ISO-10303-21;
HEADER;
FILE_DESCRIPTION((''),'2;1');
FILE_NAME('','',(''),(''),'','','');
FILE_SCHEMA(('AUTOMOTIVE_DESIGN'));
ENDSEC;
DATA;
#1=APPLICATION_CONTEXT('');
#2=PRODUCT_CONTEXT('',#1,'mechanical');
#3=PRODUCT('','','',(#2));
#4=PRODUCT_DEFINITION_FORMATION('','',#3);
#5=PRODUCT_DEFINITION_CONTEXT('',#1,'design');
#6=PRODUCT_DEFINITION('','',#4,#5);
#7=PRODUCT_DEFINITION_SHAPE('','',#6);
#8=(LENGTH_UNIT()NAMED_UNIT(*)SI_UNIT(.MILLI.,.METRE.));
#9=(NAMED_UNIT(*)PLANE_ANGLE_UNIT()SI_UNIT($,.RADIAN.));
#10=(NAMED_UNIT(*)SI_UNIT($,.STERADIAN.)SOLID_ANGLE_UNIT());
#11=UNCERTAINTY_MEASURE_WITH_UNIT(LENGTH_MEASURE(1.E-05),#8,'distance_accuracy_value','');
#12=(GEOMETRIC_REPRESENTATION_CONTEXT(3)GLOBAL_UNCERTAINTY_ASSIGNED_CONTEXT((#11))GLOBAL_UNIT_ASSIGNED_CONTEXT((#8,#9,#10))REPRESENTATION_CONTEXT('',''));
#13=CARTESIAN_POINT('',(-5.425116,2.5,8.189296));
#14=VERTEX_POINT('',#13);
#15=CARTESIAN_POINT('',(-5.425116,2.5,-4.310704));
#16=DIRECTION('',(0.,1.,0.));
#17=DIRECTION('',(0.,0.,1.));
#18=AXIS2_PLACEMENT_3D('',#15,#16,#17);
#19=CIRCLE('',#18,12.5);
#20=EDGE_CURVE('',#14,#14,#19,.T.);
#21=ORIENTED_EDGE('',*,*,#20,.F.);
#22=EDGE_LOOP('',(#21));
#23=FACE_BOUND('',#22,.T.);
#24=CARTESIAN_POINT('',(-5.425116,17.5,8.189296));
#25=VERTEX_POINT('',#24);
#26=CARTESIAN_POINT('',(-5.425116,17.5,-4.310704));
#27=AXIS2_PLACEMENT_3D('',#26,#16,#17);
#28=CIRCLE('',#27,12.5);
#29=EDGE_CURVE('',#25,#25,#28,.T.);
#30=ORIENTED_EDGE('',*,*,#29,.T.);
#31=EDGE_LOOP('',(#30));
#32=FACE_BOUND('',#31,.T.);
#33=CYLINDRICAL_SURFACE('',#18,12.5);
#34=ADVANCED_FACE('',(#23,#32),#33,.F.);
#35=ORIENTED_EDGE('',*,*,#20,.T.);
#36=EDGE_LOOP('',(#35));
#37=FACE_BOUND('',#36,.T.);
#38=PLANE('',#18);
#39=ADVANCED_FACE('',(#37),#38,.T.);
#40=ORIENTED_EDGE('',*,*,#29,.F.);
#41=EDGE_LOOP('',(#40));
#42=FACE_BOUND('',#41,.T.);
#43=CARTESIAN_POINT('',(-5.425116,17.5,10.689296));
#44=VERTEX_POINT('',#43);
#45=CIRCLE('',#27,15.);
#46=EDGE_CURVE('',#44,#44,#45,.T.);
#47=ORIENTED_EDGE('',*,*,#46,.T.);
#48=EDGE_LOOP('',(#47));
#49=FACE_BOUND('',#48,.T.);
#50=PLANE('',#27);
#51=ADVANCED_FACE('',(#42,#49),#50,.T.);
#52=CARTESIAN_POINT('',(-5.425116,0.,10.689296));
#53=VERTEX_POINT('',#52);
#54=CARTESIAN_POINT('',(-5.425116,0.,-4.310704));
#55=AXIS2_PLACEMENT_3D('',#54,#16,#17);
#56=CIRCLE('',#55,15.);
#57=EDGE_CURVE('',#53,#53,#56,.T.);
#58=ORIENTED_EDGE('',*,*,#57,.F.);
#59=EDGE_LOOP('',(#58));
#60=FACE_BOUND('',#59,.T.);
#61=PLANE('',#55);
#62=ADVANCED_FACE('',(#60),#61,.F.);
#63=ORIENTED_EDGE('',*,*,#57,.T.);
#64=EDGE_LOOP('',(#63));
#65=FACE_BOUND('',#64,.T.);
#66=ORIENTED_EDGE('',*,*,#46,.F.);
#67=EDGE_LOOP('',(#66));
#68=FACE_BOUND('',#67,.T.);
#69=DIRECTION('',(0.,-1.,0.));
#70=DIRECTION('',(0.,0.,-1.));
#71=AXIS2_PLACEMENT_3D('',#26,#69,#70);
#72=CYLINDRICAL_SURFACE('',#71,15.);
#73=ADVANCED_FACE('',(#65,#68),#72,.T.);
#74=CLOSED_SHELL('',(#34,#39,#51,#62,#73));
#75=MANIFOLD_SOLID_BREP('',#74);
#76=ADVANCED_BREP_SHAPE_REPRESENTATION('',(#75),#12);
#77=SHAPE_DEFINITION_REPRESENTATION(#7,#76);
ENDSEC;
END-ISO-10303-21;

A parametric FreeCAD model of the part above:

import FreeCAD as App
import Part
import Sketcher
from FreeCAD import Vector
Q = App.Units.Quantity

doc = App.newDocument("Part")
body = doc.addObject("PartDesign::Body", "Body")

# Sketch on XZ plane
sketch1 = body.newObject("Sketcher::SketchObject", "Sketch")
sketch1.AttachmentSupport = (doc.getObject("XZ_Plane"), [""])
sketch1.MapMode = "FlatFace"
sketch1.addGeometry(Part.Circle(Vector(-5.425116, -4.310704, 0), Vector(0, 0, 1), 15), False)
sketch1.addConstraint(Sketcher.Constraint("Diameter", 0, Q("30 mm")))
sketch1.addConstraint(Sketcher.Constraint("DistanceX", 0, 3, -1, 1, Q("5.425116 mm")))
sketch1.addConstraint(Sketcher.Constraint("DistanceY", 0, 3, -1, 1, Q("4.310704 mm")))
pad1 = body.newObject("PartDesign::Pad", "Pad")
pad1.Profile = sketch1
pad1.Length = 17.5
pad1.Reversed = True

# Sketch on XZ plane
sketch2 = body.newObject("Sketcher::SketchObject", "Sketch001")
sketch2.AttachmentSupport = (doc.getObject("XZ_Plane"), [""])
sketch2.MapMode = "FlatFace"
sketch2.AttachmentOffset = App.Placement(Vector(0, 0, -17.5), App.Rotation())
sketch2.addGeometry(Part.Circle(Vector(-5.425116, -4.310704, 0), Vector(0, 0, 1), 12.5), False)
sketch2.addConstraint(Sketcher.Constraint("Diameter", 0, Q("25 mm")))
sketch2.addConstraint(Sketcher.Constraint("DistanceX", 0, 3, -1, 1, Q("5.425116 mm")))
sketch2.addConstraint(Sketcher.Constraint("DistanceY", 0, 3, -1, 1, Q("4.310704 mm")))
pocket1 = body.newObject("PartDesign::Pocket", "Pocket")
pocket1.Profile = sketch2
pocket1.Length = 15
pocket1.Reversed = True

doc.recompute()
